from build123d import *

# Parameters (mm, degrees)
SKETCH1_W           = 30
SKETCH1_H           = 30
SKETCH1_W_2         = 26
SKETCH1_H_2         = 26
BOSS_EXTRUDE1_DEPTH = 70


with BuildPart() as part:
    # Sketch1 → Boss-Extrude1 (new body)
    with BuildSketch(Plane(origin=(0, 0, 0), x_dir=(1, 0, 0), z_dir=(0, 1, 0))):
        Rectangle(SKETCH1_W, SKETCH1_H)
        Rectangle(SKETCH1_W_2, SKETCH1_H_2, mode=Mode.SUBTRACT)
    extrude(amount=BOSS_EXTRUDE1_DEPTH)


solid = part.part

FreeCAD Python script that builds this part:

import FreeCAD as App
import Part
import Sketcher
from FreeCAD import Vector

doc = App.newDocument("Part")
body = doc.addObject("PartDesign::Body", "Body")

sketch1 = body.newObject("Sketcher::SketchObject", "Sketch")
sketch1.AttachmentSupport = (doc.getObject("XZ_Plane"), [""])
sketch1.MapMode = "FlatFace"
sketch1.addGeometry(Part.LineSegment(Vector(-15, -15, 0), Vector(-15, 15, 0)), False)
sketch1.addGeometry(Part.LineSegment(Vector(-15, 15, 0), Vector(15, 15, 0)), False)
sketch1.addGeometry(Part.LineSegment(Vector(15, 15, 0), Vector(15, -15, 0)), False)
sketch1.addGeometry(Part.LineSegment(Vector(15, -15, 0), Vector(-15, -15, 0)), False)
sketch1.addGeometry(Part.LineSegment(Vector(13, 13, 0), Vector(-13, 13, 0)), False)
sketch1.addGeometry(Part.LineSegment(Vector(-13, 13, 0), Vector(-13, -13, 0)), False)
sketch1.addGeometry(Part.LineSegment(Vector(-13, -13, 0), Vector(13, -13, 0)), False)
sketch1.addGeometry(Part.LineSegment(Vector(13, -13, 0), Vector(13, 13, 0)), False)
sketch1.addConstraint(Sketcher.Constraint("Coincident", 0, 2, 1, 1))
sketch1.addConstraint(Sketcher.Constraint("Coincident", 1, 2, 2, 1))
sketch1.addConstraint(Sketcher.Constraint("Coincident", 2, 2, 3, 1))
sketch1.addConstraint(Sketcher.Constraint("Coincident", 3, 2, 0, 1))
sketch1.addConstraint(Sketcher.Constraint("Coincident", 4, 2, 5, 1))
sketch1.addConstraint(Sketcher.Constraint("Coincident", 5, 2, 6, 1))
sketch1.addConstraint(Sketcher.Constraint("Coincident", 6, 2, 7, 1))
sketch1.addConstraint(Sketcher.Constraint("Coincident", 7, 2, 4, 1))
sketch1.addConstraint(Sketcher.Constraint("Vertical", 0))
sketch1.addConstraint(Sketcher.Constraint("Horizontal", 1))
sketch1.addConstraint(Sketcher.Constraint("Vertical", 2))
sketch1.addConstraint(Sketcher.Constraint("Horizontal", 3))
sketch1.addConstraint(Sketcher.Constraint("Horizontal", 4))
sketch1.addConstraint(Sketcher.Constraint("Vertical", 5))
sketch1.addConstraint(Sketcher.Constraint("Horizontal", 6))
sketch1.addConstraint(Sketcher.Constraint("Vertical", 7))
sketch1.addConstraint(Sketcher.Constraint("Symmetric", 0, 2, 2, 2, -1, 1))
sketch1.addConstraint(Sketcher.Constraint("Symmetric", 4, 2, 6, 2, -1, 1))
sketch1.addConstraint(Sketcher.Constraint("Equal", 3, 0))
sketch1.addConstraint(Sketcher.Constraint("Equal", 6, 5))
sketch1.addConstraint(Sketcher.Constraint("DistanceX", 1, 1, 1, 2, 30.0))
sketch1.addConstraint(Sketcher.Constraint("DistanceX", 4, 2, 4, 1, 26.0))
pad1 = body.newObject("PartDesign::Pad", "Pad")
pad1.Profile = sketch1
pad1.Length = 70
pad1.Reversed = True

doc.recompute()
